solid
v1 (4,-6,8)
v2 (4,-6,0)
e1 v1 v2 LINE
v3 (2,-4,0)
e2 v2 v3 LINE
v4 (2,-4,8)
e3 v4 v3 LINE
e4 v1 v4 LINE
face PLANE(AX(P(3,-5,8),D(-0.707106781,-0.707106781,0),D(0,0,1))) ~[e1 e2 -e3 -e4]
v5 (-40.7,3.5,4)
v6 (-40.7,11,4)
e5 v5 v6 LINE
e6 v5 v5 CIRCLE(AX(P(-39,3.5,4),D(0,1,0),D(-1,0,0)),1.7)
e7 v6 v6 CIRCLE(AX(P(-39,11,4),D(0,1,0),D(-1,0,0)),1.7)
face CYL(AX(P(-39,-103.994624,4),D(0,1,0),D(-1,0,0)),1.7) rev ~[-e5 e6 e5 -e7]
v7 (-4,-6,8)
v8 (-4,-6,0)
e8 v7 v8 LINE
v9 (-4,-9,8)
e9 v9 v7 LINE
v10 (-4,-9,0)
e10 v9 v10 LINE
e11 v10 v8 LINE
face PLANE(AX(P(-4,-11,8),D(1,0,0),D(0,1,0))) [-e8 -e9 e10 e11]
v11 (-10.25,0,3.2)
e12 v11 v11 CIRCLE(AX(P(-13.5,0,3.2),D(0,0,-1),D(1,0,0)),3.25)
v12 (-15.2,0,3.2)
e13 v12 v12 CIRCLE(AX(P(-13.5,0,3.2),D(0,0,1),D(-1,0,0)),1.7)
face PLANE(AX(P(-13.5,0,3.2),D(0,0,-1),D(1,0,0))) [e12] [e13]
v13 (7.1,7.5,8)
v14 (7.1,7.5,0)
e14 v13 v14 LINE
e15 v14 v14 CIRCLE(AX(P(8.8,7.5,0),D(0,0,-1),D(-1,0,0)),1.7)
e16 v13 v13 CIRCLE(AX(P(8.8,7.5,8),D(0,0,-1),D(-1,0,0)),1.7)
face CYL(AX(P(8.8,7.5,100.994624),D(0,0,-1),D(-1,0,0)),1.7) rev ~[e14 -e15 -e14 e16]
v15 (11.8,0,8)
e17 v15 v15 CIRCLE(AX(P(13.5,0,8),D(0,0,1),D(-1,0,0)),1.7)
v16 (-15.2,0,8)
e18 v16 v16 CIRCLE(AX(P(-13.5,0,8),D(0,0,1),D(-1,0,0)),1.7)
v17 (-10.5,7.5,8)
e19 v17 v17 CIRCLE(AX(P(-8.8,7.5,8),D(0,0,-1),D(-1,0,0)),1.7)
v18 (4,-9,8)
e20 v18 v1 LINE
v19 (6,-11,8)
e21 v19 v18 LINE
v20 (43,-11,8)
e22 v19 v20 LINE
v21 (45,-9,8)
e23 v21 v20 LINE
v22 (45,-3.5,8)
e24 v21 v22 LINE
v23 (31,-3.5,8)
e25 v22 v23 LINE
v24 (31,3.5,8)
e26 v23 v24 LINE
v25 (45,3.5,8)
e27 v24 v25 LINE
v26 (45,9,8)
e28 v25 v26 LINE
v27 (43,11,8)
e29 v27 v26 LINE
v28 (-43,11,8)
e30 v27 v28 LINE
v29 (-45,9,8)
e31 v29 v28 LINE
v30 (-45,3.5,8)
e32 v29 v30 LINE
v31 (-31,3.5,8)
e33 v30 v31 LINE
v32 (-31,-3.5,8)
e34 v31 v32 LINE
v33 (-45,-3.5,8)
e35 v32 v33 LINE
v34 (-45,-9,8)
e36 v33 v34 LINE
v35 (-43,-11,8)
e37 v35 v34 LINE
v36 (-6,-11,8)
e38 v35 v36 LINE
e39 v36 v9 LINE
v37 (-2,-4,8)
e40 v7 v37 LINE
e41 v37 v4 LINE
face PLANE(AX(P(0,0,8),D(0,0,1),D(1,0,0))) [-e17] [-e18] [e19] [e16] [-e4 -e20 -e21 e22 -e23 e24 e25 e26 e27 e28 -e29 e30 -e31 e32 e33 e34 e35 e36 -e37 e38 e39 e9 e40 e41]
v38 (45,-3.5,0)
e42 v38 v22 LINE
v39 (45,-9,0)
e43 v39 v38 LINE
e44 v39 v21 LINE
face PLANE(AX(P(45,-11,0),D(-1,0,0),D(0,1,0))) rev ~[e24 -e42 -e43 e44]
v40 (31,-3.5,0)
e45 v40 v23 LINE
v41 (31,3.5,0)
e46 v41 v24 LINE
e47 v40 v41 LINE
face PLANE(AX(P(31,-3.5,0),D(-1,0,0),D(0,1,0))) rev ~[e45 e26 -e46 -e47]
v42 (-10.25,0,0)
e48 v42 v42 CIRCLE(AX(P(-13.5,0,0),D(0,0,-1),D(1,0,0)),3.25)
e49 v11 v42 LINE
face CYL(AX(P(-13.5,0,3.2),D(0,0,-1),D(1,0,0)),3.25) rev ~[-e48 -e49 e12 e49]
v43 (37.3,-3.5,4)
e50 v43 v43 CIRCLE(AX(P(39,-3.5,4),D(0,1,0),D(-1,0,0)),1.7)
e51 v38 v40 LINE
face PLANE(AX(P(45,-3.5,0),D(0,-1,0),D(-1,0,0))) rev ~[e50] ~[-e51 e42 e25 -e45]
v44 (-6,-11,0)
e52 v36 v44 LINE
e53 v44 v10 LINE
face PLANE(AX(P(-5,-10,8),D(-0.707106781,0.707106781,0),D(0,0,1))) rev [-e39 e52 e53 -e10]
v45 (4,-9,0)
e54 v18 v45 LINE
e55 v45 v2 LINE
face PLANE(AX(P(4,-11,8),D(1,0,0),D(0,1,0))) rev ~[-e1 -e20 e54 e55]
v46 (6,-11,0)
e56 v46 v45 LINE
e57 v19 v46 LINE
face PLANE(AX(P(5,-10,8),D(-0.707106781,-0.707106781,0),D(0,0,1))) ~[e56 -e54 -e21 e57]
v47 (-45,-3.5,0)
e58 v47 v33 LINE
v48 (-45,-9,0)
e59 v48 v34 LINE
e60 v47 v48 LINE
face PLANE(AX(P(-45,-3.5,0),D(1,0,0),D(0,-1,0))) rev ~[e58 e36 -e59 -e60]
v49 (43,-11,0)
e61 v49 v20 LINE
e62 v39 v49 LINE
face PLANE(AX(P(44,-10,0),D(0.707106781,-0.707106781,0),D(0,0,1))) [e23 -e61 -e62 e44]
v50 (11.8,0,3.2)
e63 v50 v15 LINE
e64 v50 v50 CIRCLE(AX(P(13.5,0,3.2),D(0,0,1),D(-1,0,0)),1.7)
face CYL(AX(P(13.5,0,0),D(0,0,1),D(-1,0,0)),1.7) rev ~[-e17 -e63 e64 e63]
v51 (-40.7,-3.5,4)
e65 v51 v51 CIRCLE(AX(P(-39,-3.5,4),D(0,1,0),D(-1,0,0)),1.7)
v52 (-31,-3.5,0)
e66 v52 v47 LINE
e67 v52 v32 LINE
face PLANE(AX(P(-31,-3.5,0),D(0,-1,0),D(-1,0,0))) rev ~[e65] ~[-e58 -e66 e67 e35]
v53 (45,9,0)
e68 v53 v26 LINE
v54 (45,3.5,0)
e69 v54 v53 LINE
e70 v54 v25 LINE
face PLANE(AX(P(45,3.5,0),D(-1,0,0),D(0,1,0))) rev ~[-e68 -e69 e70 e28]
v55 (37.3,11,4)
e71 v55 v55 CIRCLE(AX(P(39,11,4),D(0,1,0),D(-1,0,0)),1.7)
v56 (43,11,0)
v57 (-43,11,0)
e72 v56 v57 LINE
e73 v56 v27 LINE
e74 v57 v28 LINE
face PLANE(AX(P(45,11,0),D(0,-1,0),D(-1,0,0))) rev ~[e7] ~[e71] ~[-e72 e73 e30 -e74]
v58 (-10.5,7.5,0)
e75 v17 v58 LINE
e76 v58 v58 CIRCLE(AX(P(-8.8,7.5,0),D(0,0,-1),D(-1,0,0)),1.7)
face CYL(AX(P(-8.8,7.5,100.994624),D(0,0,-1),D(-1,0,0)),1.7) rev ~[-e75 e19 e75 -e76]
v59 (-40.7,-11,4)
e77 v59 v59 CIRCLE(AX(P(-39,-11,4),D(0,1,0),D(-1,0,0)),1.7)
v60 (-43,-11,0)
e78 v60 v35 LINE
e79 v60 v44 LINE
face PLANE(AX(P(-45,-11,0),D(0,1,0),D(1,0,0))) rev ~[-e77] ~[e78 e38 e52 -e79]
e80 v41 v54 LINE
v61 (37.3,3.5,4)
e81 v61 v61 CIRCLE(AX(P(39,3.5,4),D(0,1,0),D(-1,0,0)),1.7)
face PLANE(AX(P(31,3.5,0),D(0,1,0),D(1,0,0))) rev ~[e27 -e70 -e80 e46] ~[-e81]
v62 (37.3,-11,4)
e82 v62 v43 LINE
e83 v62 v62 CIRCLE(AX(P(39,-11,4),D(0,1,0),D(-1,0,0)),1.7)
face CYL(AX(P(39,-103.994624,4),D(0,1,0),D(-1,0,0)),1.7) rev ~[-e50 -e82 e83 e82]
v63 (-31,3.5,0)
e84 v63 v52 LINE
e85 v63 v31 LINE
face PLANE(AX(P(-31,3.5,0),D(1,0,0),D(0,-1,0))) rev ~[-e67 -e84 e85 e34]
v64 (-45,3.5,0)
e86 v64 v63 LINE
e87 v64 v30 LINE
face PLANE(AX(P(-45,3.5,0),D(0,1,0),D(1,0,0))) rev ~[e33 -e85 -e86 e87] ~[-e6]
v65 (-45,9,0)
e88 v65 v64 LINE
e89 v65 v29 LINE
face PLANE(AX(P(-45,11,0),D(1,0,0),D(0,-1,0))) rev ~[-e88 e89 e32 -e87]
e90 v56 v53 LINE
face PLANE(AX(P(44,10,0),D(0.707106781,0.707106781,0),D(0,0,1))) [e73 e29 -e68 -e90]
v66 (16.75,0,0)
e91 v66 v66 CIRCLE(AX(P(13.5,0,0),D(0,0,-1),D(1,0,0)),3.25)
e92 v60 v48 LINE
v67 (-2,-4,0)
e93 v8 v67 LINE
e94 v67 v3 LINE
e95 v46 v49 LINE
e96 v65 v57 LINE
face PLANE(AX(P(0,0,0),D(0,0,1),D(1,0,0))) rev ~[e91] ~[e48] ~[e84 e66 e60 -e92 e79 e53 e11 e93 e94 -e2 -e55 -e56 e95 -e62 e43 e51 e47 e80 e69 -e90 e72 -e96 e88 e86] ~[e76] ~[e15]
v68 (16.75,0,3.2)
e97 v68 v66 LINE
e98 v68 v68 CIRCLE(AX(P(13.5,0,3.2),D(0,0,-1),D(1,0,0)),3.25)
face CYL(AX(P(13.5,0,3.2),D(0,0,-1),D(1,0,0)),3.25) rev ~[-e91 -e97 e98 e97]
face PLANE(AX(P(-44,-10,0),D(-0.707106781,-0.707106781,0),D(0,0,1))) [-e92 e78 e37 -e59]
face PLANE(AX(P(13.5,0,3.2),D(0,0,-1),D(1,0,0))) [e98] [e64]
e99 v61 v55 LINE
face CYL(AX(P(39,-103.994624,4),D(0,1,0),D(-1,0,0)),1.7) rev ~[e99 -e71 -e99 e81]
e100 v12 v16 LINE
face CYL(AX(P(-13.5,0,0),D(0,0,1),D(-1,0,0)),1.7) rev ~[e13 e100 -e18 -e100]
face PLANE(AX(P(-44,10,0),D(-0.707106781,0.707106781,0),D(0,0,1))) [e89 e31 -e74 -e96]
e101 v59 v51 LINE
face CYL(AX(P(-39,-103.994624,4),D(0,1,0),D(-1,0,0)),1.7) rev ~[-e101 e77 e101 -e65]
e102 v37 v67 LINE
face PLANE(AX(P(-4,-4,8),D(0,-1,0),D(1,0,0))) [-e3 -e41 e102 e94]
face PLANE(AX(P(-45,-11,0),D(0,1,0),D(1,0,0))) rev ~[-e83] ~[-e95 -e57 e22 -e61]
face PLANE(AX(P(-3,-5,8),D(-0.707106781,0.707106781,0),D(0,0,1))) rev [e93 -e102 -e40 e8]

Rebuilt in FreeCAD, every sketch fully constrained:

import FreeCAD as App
import Part
import Sketcher

V = App.Vector
Q = App.Units.Quantity


def edges_at(feature, points):
    """Names of the edges that pass closest to the given points."""
    edges = feature.Shape.Edges
    near = lambda p: min(range(len(edges)), key=lambda i: edges[i].distToShape(Part.Vertex(*p))[0])
    return sorted({f"Edge{near(p) + 1}" for p in points})


def add_polygon(sketch, points):
    """Adds a closed chain of lines whose ends are joined by coincident constraints."""
    first, n = sketch.GeometryCount, len(points)
    for a, b in zip(points, points[1:] + points[:1]):
        sketch.addGeometry(Part.LineSegment(App.Vector(*a, 0), App.Vector(*b, 0)), False)
    for i in range(n):
        sketch.addConstraint(Sketcher.Constraint("Coincident", first + i, 2, first + (i + 1) % n, 1))

doc = App.newDocument("Part")
body = doc.addObject("PartDesign::Body", "Body")

sketch1 = body.newObject("Sketcher::SketchObject", "Sketch")
sketch1.AttachmentSupport = (doc.getObject("XY_Plane"), [""])
sketch1.MapMode = "FlatFace"
add_polygon(sketch1, [(-45, -11), (45, -11), (45, -4), (31, -4), (31, 4), (45, 4), (45, 11), (-45, 11), (-45, 4), (-31, 4), (-31, -4), (-45, -4)])
sketch1.addConstraint([
    Sketcher.Constraint("Horizontal", 0),
    Sketcher.Constraint("Vertical", 1),
    Sketcher.Constraint("Horizontal", 2),
    Sketcher.Constraint("Vertical", 3),
    Sketcher.Constraint("Horizontal", 4),
    Sketcher.Constraint("Vertical", 5),
    Sketcher.Constraint("Horizontal", 6),
    Sketcher.Constraint("Vertical", 7),
    Sketcher.Constraint("Horizontal", 8),
    Sketcher.Constraint("Vertical", 9),
    Sketcher.Constraint("Horizontal", 10),
    Sketcher.Constraint("Vertical", 11),
    Sketcher.Constraint("Symmetric", 0, 2, 6, 2, -1, 1),
    Sketcher.Constraint("Symmetric", 2, 2, 8, 2, -1, 1),
    Sketcher.Constraint("Symmetric", 4, 2, 10, 2, -1, 1),
    Sketcher.Constraint("Symmetric", 4, 2, 7, 2, -2),
    Sketcher.Constraint("DistanceX", 0, 1, 0, 2, Q("90 mm")),
    Sketcher.Constraint("DistanceX", 2, 2, 2, 1, Q("14 mm")),
    Sketcher.Constraint("DistanceY", 3, 1, 3, 2, Q("7 mm")),
    Sketcher.Constraint("DistanceY", 1, 1, 1, 2, Q("7.5 mm")),
])
pad1 = body.newObject("PartDesign::Pad", "Pad")
pad1.Profile = sketch1
pad1.Length = 8

sketch2 = body.newObject("Sketcher::SketchObject", "Sketch001")
sketch2.AttachmentSupport = (doc.getObject("XZ_Plane"), [""])
sketch2.MapMode = "FlatFace"
sketch2.AttachmentOffset = App.Placement(V(0, 0, 11), App.Rotation())
sketch2.addGeometry([
    Part.Circle(V(-39, 4, 0), V(0, 0, 1), 1.7),
    Part.Circle(V(39, 4, 0), V(0, 0, 1), 1.7),
], False)
sketch2.addConstraint([
    Sketcher.Constraint("Equal", 0, 1),
    Sketcher.Constraint("Symmetric", 0, 3, 1, 3, -2),
    Sketcher.Constraint("Diameter", 0, Q("3.4 mm")),
    Sketcher.Constraint("DistanceX", 0, 3, -1, 1, Q("39 mm")),
    Sketcher.Constraint("DistanceY", -1, 1, 0, 3, Q("4 mm")),
])
doc.recompute()
hole = body.newObject("PartDesign::Hole", "Hole")
hole.Profile = sketch2
hole.ThreadType = "None"
hole.Diameter = 3.4
hole.DepthType = "ThroughAll"

sketch3 = body.newObject("Sketcher::SketchObject", "Sketch002")
sketch3.AttachmentSupport = (doc.getObject("XY_Plane"), [""])
sketch3.MapMode = "FlatFace"
sketch3.addGeometry([
    Part.Circle(V(-13.5, 0, 0), V(0, 0, 1), 1.7),
    Part.Circle(V(13.5, 0, 0), V(0, 0, 1), 1.7),
], False)
sketch3.addConstraint([
    Sketcher.Constraint("Equal", 0, 1),
    Sketcher.Constraint("Symmetric", 0, 3, 1, 3, -1, 1),
    Sketcher.Constraint("PointOnObject", 0, 3, -1),
    Sketcher.Constraint("Diameter", 0, Q("3.4 mm")),
    Sketcher.Constraint("DistanceX", 0, 3, 1, 3, Q("27 mm")),
])
doc.recompute()
hole2 = body.newObject("PartDesign::Hole", "Hole001")
hole2.Profile = sketch3
hole2.ThreadType = "None"
hole2.Diameter = 3.4
hole2.DepthType = "ThroughAll"
hole2.HoleCutType = "Counterbore"
hole2.HoleCutDiameter = 6.5
hole2.HoleCutDepth = 3.2
hole2.Reversed = True

sketch4 = body.newObject("Sketcher::SketchObject", "Sketch003")
sketch4.AttachmentSupport = (doc.getObject("XY_Plane"), [""])
sketch4.MapMode = "FlatFace"
sketch4.AttachmentOffset = App.Placement(V(0, 0, 8), App.Rotation())
sketch4.addGeometry([
    Part.Circle(V(-8.8, 7.5, 0), V(0, 0, 1), 1.7),
    Part.Circle(V(8.8, 7.5, 0), V(0, 0, 1), 1.7),
], False)
sketch4.addConstraint([
    Sketcher.Constraint("Equal", 0, 1),
    Sketcher.Constraint("Symmetric", 0, 3, 1, 3, -2),
    Sketcher.Constraint("Diameter", 0, Q("3.4 mm")),
    Sketcher.Constraint("DistanceX", 0, 3, -1, 1, Q("8.8 mm")),
    Sketcher.Constraint("DistanceY", -1, 1, 0, 3, Q("7.5 mm")),
])
doc.recompute()
hole3 = body.newObject("PartDesign::Hole", "Hole002")
hole3.Profile = sketch4
hole3.ThreadType = "None"
hole3.Diameter = 3.4
hole3.DepthType = "ThroughAll"

sketch5 = body.newObject("Sketcher::SketchObject", "Sketch004")
sketch5.AttachmentSupport = (doc.getObject("XY_Plane"), [""])
sketch5.MapMode = "FlatFace"
sketch5.AttachmentOffset = App.Placement(V(0, 0, 8), App.Rotation())
add_polygon(sketch5, [(-4, -4), (-4, -11), (4, -11), (4, -4)])
sketch5.addConstraint([
    Sketcher.Constraint("Vertical", 0),
    Sketcher.Constraint("Horizontal", 1),
    Sketcher.Constraint("Vertical", 2),
    Sketcher.Constraint("Horizontal", 3),
    Sketcher.Constraint("DistanceX", 1, 1, 1, 2, Q("8 mm")),
    Sketcher.Constraint("DistanceY", 0, 2, 0, 1, Q("7 mm")),
    Sketcher.Constraint("DistanceX", 0, 2, -1, 1, Q("4 mm")),
    Sketcher.Constraint("DistanceY", 0, 2, -1, 1, Q("11 mm")),
])
pocket1 = body.newObject("PartDesign::Pocket", "Pocket")
pocket1.Profile = sketch5
pocket1.Type = "ThroughAll"
doc.recompute()

chamfer = body.newObject("PartDesign::Chamfer", "Chamfer")
chamfer.Base = (pocket1, edges_at(pocket1, [
    (-45, -11, 4),
    (45, -11, 4),
    (4, -11, 4),
    (4, -4, 4),
    (-4, -4, 4),
    (-4, -11, 4),
    (45, 11, 4),
    (-45, 11, 4),
]))
chamfer.Size = 2

doc.recompute()
